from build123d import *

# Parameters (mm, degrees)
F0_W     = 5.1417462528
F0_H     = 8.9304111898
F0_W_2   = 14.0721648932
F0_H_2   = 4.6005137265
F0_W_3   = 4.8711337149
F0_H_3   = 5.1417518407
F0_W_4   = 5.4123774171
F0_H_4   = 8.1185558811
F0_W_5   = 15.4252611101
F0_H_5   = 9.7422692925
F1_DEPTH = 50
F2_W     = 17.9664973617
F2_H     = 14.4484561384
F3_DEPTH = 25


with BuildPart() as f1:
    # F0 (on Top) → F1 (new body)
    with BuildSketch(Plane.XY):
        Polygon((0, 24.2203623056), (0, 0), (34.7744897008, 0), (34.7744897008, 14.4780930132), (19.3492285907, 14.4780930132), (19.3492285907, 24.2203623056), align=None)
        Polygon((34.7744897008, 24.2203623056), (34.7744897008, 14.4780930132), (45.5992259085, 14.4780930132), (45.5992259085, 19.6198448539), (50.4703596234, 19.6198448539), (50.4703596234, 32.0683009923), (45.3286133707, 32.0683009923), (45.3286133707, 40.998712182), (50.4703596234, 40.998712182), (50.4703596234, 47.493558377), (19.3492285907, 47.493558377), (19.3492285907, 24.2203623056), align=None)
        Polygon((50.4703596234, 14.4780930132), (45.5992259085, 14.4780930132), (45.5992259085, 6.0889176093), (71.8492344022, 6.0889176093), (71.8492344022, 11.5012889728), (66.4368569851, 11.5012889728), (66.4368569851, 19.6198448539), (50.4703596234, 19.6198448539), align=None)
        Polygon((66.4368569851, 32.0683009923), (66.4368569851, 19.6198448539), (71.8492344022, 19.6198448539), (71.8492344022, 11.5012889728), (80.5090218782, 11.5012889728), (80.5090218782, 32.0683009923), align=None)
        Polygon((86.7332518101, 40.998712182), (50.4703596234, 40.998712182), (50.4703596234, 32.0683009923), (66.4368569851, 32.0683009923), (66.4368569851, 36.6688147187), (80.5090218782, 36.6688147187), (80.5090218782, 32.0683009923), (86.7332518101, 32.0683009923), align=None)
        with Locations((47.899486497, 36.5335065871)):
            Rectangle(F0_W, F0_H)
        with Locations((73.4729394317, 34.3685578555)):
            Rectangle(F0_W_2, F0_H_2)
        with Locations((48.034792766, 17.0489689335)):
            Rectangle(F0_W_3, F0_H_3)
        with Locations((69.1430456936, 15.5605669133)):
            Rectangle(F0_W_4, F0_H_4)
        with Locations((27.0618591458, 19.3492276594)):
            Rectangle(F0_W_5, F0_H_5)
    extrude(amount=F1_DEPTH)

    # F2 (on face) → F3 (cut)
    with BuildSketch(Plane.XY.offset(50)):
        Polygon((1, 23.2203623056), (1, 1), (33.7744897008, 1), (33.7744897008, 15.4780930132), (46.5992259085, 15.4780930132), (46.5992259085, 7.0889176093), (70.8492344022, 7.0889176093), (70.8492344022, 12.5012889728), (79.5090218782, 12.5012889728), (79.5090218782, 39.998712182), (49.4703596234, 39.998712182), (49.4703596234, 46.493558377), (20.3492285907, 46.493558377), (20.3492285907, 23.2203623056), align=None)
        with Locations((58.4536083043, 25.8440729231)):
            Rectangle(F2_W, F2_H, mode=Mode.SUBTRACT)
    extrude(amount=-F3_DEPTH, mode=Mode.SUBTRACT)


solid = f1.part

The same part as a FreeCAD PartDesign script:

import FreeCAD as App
import Part
import Sketcher


def add_polygon(sketch, points):
    """Adds a closed chain of lines whose ends are joined by coincident constraints."""
    first, n = sketch.GeometryCount, len(points)
    for a, b in zip(points, points[1:] + points[:1]):
        sketch.addGeometry(Part.LineSegment(App.Vector(*a, 0), App.Vector(*b, 0)), False)
    for i in range(n):
        sketch.addConstraint(Sketcher.Constraint("Coincident", first + i, 2, first + (i + 1) % n, 1))

doc = App.newDocument("Part")
body = doc.addObject("PartDesign::Body", "Body")

sketch1 = doc.addObject("Sketcher::SketchObject", "Sketch")
body.addObject(sketch1)
sketch1.AttachmentSupport = (doc.XY_Plane, [""])
sketch1.MapMode = "FlatFace"
add_polygon(sketch1, [(0, 24), (0, 0), (35, 0), (35, 14), (46, 14), (46, 6), (72, 6), (72, 12), (81, 12), (81, 32), (87, 32), (87, 41), (50, 41), (50, 47), (19, 47), (19, 24)])
add_polygon(sketch1, [(50, 20), (50, 32), (66, 32), (66, 20)])
sketch1.addConstraint(Sketcher.Constraint("Vertical", 0))
sketch1.addConstraint(Sketcher.Constraint("Horizontal", 1))
sketch1.addConstraint(Sketcher.Constraint("Vertical", 2))
sketch1.addConstraint(Sketcher.Constraint("Horizontal", 3))
sketch1.addConstraint(Sketcher.Constraint("Vertical", 4))
sketch1.addConstraint(Sketcher.Constraint("Horizontal", 5))
sketch1.addConstraint(Sketcher.Constraint("Vertical", 6))
sketch1.addConstraint(Sketcher.Constraint("Horizontal", 7))
sketch1.addConstraint(Sketcher.Constraint("Vertical", 8))
sketch1.addConstraint(Sketcher.Constraint("Horizontal", 9))
sketch1.addConstraint(Sketcher.Constraint("Vertical", 10))
sketch1.addConstraint(Sketcher.Constraint("Horizontal", 11))
sketch1.addConstraint(Sketcher.Constraint("Vertical", 12))
sketch1.addConstraint(Sketcher.Constraint("Horizontal", 13))
sketch1.addConstraint(Sketcher.Constraint("Vertical", 14))
sketch1.addConstraint(Sketcher.Constraint("Horizontal", 15))
sketch1.addConstraint(Sketcher.Constraint("Vertical", 16))
sketch1.addConstraint(Sketcher.Constraint("Horizontal", 17))
sketch1.addConstraint(Sketcher.Constraint("Vertical", 18))
sketch1.addConstraint(Sketcher.Constraint("Horizontal", 19))
sketch1.addConstraint(Sketcher.Constraint("Coincident", 0, 2, -1, 1))
sketch1.addConstraint(Sketcher.Constraint("Horizontal", 9, 2, 16, 2))
sketch1.addConstraint(Sketcher.Constraint("Vertical", 12, 2, 16, 2))
sketch1.addConstraint(Sketcher.Constraint("DistanceX", 1, 1, 1, 2, 34.77449))
sketch1.addConstraint(Sketcher.Constraint("DistanceX", 5, 1, 5, 2, 26.250008))
sketch1.addConstraint(Sketcher.Constraint("DistanceX", 9, 1, 9, 2, 6.22423))
sketch1.addConstraint(Sketcher.Constraint("DistanceX", 13, 2, 13, 1, 31.121131))
sketch1.addConstraint(Sketcher.Constraint("DistanceX", 15, 2, 15, 1, 19.349229))
sketch1.addConstraint(Sketcher.Constraint("DistanceY", 6, 1, 6, 2, 5.412371))
sketch1.addConstraint(Sketcher.Constraint("DistanceY", 10, 1, 10, 2, 8.930411))
sketch1.addConstraint(Sketcher.Constraint("DistanceY", -1, 1, 8, 2, 32.068301))
sketch1.addConstraint(Sketcher.Constraint("DistanceX", 3, 1, 3, 2, 10.824736))
sketch1.addConstraint(Sketcher.Constraint("DistanceX", 7, 1, 7, 2, 8.659787))
sketch1.addConstraint(Sketcher.Constraint("DistanceX", 17, 1, 17, 2, 15.966497))
sketch1.addConstraint(Sketcher.Constraint("DistanceY", 0, 2, 0, 1, 24.220362))
sketch1.addConstraint(Sketcher.Constraint("DistanceY", 2, 1, 2, 2, 14.478093))
sketch1.addConstraint(Sketcher.Constraint("DistanceY", 4, 2, 4, 1, 8.389175))
sketch1.addConstraint(Sketcher.Constraint("DistanceY", 12, 1, 12, 2, 6.494846))
sketch1.addConstraint(Sketcher.Constraint("DistanceY", 16, 1, 16, 2, 12.448456))
pad1 = doc.addObject("PartDesign::Pad", "Pad")
body.addObject(pad1)
pad1.Profile = sketch1
pad1.Length = 50

sketch2 = doc.addObject("Sketcher::SketchObject", "Sketch001")
body.addObject(sketch2)
sketch2.AttachmentSupport = (doc.XY_Plane, [""])
sketch2.MapMode = "FlatFace"
sketch2.AttachmentOffset = App.Placement(App.Vector(0, 0, 50), App.Rotation())
add_polygon(sketch2, [(1, 23), (1, 1), (34, 1), (34, 15), (47, 15), (47, 7), (71, 7), (71, 13), (80, 13), (80, 40), (49, 40), (49, 46), (20, 46), (20, 23)])
add_polygon(sketch2, [(67, 19), (49, 19), (49, 33), (67, 33)])
sketch2.addConstraint(Sketcher.Constraint("Vertical", 0))
sketch2.addConstraint(Sketcher.Constraint("Horizontal", 1))
sketch2.addConstraint(Sketcher.Constraint("Vertical", 2))
sketch2.addConstraint(Sketcher.Constraint("Horizontal", 3))
sketch2.addConstraint(Sketcher.Constraint("Vertical", 4))
sketch2.addConstraint(Sketcher.Constraint("Horizontal", 5))
sketch2.addConstraint(Sketcher.Constraint("Vertical", 6))
sketch2.addConstraint(Sketcher.Constraint("Horizontal", 7))
sketch2.addConstraint(Sketcher.Constraint("Vertical", 8))
sketch2.addConstraint(Sketcher.Constraint("Horizontal", 9))
sketch2.addConstraint(Sketcher.Constraint("Vertical", 10))
sketch2.addConstraint(Sketcher.Constraint("Horizontal", 11))
sketch2.addConstraint(Sketcher.Constraint("Vertical", 12))
sketch2.addConstraint(Sketcher.Constraint("Horizontal", 13))
sketch2.addConstraint(Sketcher.Constraint("Horizontal", 14))
sketch2.addConstraint(Sketcher.Constraint("Vertical", 15))
sketch2.addConstraint(Sketcher.Constraint("Horizontal", 16))
sketch2.addConstraint(Sketcher.Constraint("Vertical", 17))
sketch2.addConstraint(Sketcher.Constraint("Vertical", 10, 2, 14, 2))
sketch2.addConstraint(Sketcher.Constraint("DistanceX", -1, 1, 0, 2, 1.0))
sketch2.addConstraint(Sketcher.Constraint("DistanceY", -1, 1, 0, 2, 1.0))
sketch2.addConstraint(Sketcher.Constraint("DistanceX", 1, 1, 1, 2, 32.77449))
sketch2.addConstraint(Sketcher.Constraint("DistanceX", 5, 1, 5, 2, 24.250008))
sketch2.addConstraint(Sketcher.Constraint("DistanceX", 11, 2, 11, 1, 29.121131))
sketch2.addConstraint(Sketcher.Constraint("DistanceX", 13, 2, 13, 1, 19.349229))
sketch2.addConstraint(Sketcher.Constraint("DistanceY", 6, 1, 6, 2, 5.412371))
sketch2.addConstraint(Sketcher.Constraint("DistanceY", -1, 1, 15, 2, 33.068301))
sketch2.addConstraint(Sketcher.Constraint("DistanceX", 3, 1, 3, 2, 12.824736))
sketch2.addConstraint(Sketcher.Constraint("DistanceX", 7, 1, 7, 2, 8.659787))
sketch2.addConstraint(Sketcher.Constraint("DistanceX", 14, 2, 14, 1, 17.966497))
sketch2.addConstraint(Sketcher.Constraint("DistanceY", 0, 2, 0, 1, 22.220362))
sketch2.addConstraint(Sketcher.Constraint("DistanceY", 2, 1, 2, 2, 14.478093))
sketch2.addConstraint(Sketcher.Constraint("DistanceY", 4, 2, 4, 1, 8.389175))
sketch2.addConstraint(Sketcher.Constraint("DistanceY", 8, 1, 8, 2, 27.497423))
sketch2.addConstraint(Sketcher.Constraint("DistanceY", 10, 1, 10, 2, 6.494846))
sketch2.addConstraint(Sketcher.Constraint("DistanceY", 15, 1, 15, 2, 14.448456))
pocket1 = doc.addObject("PartDesign::Pocket", "Pocket")
body.addObject(pocket1)
pocket1.Profile = sketch2
pocket1.Length = 25

doc.recompute()
